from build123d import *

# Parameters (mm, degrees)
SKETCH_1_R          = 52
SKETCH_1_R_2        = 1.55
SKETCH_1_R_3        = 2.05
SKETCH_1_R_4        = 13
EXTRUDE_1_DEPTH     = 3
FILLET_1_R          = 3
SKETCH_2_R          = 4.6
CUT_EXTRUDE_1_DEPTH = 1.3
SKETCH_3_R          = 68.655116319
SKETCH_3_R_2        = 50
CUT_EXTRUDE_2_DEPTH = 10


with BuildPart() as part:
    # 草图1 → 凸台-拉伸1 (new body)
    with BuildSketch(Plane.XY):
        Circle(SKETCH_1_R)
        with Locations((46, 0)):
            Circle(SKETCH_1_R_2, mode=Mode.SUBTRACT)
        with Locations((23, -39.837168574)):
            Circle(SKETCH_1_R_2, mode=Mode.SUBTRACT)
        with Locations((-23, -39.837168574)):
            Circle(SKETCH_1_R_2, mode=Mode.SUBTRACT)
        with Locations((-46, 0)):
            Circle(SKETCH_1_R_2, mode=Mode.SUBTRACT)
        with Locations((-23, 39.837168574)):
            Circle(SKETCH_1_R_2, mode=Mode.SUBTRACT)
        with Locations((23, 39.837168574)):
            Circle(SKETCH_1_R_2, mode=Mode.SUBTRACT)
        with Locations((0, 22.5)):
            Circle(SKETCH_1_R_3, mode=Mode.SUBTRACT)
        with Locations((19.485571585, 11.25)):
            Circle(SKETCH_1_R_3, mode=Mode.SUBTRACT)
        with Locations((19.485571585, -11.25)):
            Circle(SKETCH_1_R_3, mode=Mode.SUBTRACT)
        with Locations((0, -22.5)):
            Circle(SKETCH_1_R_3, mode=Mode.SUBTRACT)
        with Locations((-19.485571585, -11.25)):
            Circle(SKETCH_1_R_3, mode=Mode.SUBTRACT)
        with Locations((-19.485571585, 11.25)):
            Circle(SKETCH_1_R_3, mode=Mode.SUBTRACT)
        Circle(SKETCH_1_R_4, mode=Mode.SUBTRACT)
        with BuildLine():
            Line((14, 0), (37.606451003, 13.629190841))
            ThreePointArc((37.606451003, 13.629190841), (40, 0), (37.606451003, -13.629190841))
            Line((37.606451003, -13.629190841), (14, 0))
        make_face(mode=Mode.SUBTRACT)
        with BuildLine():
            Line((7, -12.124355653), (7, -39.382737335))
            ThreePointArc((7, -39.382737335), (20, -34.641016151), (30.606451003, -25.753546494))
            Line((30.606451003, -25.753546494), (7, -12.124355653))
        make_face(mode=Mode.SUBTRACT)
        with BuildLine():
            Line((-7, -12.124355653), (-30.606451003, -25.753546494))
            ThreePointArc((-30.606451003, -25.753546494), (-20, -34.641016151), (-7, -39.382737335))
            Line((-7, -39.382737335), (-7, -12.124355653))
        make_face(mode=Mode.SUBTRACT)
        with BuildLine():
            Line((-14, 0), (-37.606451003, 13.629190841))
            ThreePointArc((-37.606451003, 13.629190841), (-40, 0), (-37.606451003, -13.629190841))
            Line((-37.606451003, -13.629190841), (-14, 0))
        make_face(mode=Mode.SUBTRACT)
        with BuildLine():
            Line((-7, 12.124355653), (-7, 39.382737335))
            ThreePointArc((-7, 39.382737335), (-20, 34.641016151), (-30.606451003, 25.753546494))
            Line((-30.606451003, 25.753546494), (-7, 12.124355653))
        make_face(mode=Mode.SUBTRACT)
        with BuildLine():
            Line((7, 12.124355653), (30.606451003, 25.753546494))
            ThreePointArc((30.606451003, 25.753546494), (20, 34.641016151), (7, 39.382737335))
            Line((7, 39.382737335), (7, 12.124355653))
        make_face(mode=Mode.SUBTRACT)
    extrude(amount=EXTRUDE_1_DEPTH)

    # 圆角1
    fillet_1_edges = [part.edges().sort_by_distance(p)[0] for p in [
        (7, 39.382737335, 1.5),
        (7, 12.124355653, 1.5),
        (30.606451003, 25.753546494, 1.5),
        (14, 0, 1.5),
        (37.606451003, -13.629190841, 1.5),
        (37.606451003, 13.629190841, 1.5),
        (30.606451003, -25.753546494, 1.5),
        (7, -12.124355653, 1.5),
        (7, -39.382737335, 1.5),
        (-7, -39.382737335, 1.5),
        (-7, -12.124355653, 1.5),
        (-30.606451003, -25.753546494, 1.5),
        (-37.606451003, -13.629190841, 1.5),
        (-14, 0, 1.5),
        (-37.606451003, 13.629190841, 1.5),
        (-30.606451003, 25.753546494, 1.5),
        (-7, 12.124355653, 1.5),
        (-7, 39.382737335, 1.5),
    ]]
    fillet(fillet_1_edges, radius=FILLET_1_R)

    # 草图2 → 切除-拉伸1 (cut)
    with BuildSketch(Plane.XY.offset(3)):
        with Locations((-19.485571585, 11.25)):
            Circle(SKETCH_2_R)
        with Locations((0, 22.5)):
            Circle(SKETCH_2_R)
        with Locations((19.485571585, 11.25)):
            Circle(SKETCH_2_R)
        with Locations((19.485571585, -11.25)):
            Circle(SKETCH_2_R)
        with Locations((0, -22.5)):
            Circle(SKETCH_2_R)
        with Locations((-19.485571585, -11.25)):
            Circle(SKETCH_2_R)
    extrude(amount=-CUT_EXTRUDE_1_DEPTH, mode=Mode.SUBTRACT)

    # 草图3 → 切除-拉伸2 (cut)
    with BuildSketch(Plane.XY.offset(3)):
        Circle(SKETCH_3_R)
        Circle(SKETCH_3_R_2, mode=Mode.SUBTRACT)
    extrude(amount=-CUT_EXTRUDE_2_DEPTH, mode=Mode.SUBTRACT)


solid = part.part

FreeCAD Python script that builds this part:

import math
import FreeCAD as App
import Part
import Sketcher
Q = App.Units.Quantity


def edges_at(feature, points):
    """Names of the edges that pass closest to the given points."""
    edges = feature.Shape.Edges
    near = lambda p: min(range(len(edges)), key=lambda i: edges[i].distToShape(Part.Vertex(*p))[0])
    return sorted({f"Edge{near(p) + 1}" for p in points})

doc = App.newDocument("Part")
body = doc.addObject("PartDesign::Body", "Body")

# Sketch on XY plane
sketch1 = body.newObject("Sketcher::SketchObject", "Sketch")
sketch1.AttachmentSupport = (doc.getObject("XY_Plane"), [""])
sketch1.MapMode = "FlatFace"
sketch1.addGeometry([
    Part.Circle(App.Vector(0, 0, 0), App.Vector(0, 0, 1), 52),  # 0
    Part.Circle(App.Vector(-23, -39.837169, 0), App.Vector(0, 0, 1), 1.55),  # 1
    Part.LineSegment(App.Vector(-30.606451, -25.753546, 0), App.Vector(-7, -12.124356, 0)),  # 2
    Part.LineSegment(App.Vector(-7, -12.124356, 0), App.Vector(-7, -39.382737, 0)),  # 3
    Part.ArcOfCircle(Part.Circle(App.Vector(0, 0, 0), App.Vector(0, 0, 1), 40), math.radians(-139.921342), math.radians(-100.078658)),  # 4
    Part.Circle(App.Vector(-19.485572, -11.25, 0), App.Vector(0, 0, 1), 2.05),  # 5
    Part.Circle(App.Vector(23, -39.837169, 0), App.Vector(0, 0, 1), 1.55),  # 6
    Part.Circle(App.Vector(0, -22.5, 0), App.Vector(0, 0, 1), 2.05),  # 7
    Part.LineSegment(App.Vector(7, -39.382737, 0), App.Vector(7, -12.124356, 0)),  # 8
    Part.LineSegment(App.Vector(7, -12.124356, 0), App.Vector(30.606451, -25.753546, 0)),  # 9
    Part.ArcOfCircle(Part.Circle(App.Vector(0, 0, 0), App.Vector(0, 0, 1), 40), math.radians(-79.921342), math.radians(-40.078658)),  # 10
    Part.Circle(App.Vector(19.485572, -11.25, 0), App.Vector(0, 0, 1), 2.05),  # 11
    Part.Circle(App.Vector(-46, 0, 0), App.Vector(0, 0, 1), 1.55),  # 12
    Part.LineSegment(App.Vector(-37.606451, 13.629191, 0), App.Vector(-14, 0, 0)),  # 13
    Part.LineSegment(App.Vector(-14, 0, 0), App.Vector(-37.606451, -13.629191, 0)),  # 14
    Part.ArcOfCircle(Part.Circle(App.Vector(0, 0, 0), App.Vector(0, 0, 1), 40), math.radians(160.078658), math.radians(199.921342)),  # 15
    Part.Circle(App.Vector(-19.485572, 11.25, 0), App.Vector(0, 0, 1), 2.05),  # 16
    Part.LineSegment(App.Vector(-7, 39.382737, 0), App.Vector(-7, 12.124356, 0)),  # 17
    Part.LineSegment(App.Vector(-7, 12.124356, 0), App.Vector(-30.606451, 25.753546, 0)),  # 18
    Part.ArcOfCircle(Part.Circle(App.Vector(0, 0, 0), App.Vector(0, 0, 1), 40), math.radians(100.078658), math.radians(139.921342)),  # 19
    Part.Circle(App.Vector(-23, 39.837169, 0), App.Vector(0, 0, 1), 1.55),  # 20
    Part.Circle(App.Vector(0, 0, 0), App.Vector(0, 0, 1), 13),  # 21
    Part.Circle(App.Vector(19.485572, 11.25, 0), App.Vector(0, 0, 1), 2.05),  # 22
    Part.LineSegment(App.Vector(37.606451, -13.629191, 0), App.Vector(14, 0, 0)),  # 23
    Part.LineSegment(App.Vector(14, 0, 0), App.Vector(37.606451, 13.629191, 0)),  # 24
    Part.ArcOfCircle(Part.Circle(App.Vector(0, 0, 0), App.Vector(0, 0, 1), 40), math.radians(-19.921342), math.radians(19.921342)),  # 25
    Part.Circle(App.Vector(46, 0, 0), App.Vector(0, 0, 1), 1.55),  # 26
    Part.Circle(App.Vector(0, 22.5, 0), App.Vector(0, 0, 1), 2.05),  # 27
    Part.LineSegment(App.Vector(30.606451, 25.753546, 0), App.Vector(7, 12.124356, 0)),  # 28
    Part.LineSegment(App.Vector(7, 12.124356, 0), App.Vector(7, 39.382737, 0)),  # 29
    Part.ArcOfCircle(Part.Circle(App.Vector(0, 0, 0), App.Vector(0, 0, 1), 40), math.radians(40.078658), math.radians(79.921342)),  # 30
    Part.Circle(App.Vector(23, 39.837169, 0), App.Vector(0, 0, 1), 1.55),  # 31
], False)
sketch1.addConstraint([
    Sketcher.Constraint("Coincident", 2, 2, 3, 1),
    Sketcher.Constraint("Coincident", 3, 2, 4, 2),
    Sketcher.Constraint("Coincident", 4, 1, 2, 1),
    Sketcher.Constraint("Coincident", 8, 2, 9, 1),
    Sketcher.Constraint("Coincident", 9, 2, 10, 2),
    Sketcher.Constraint("Coincident", 10, 1, 8, 1),
    Sketcher.Constraint("Coincident", 13, 2, 14, 1),
    Sketcher.Constraint("Coincident", 14, 2, 15, 2),
    Sketcher.Constraint("Coincident", 15, 1, 13, 1),
    Sketcher.Constraint("Coincident", 17, 2, 18, 1),
    Sketcher.Constraint("Coincident", 18, 2, 19, 2),
    Sketcher.Constraint("Coincident", 19, 1, 17, 1),
    Sketcher.Constraint("Coincident", 23, 2, 24, 1),
    Sketcher.Constraint("Coincident", 24, 2, 25, 2),
    Sketcher.Constraint("Coincident", 25, 1, 23, 1),
    Sketcher.Constraint("Coincident", 28, 2, 29, 1),
    Sketcher.Constraint("Coincident", 29, 2, 30, 2),
    Sketcher.Constraint("Coincident", 30, 1, 28, 1),
    Sketcher.Constraint("Vertical", 3),
    Sketcher.Constraint("Vertical", 8),
    Sketcher.Constraint("Vertical", 17),
    Sketcher.Constraint("Vertical", 29),
    Sketcher.Constraint("Coincident", 0, 3, -1, 1),
    Sketcher.Constraint("Coincident", 4, 3, -1, 1),
    Sketcher.Constraint("Coincident", 10, 3, -1, 1),
    Sketcher.Constraint("Coincident", 15, 3, -1, 1),
    Sketcher.Constraint("Coincident", 19, 3, -1, 1),
    Sketcher.Constraint("Coincident", 21, 3, -1, 1),
    Sketcher.Constraint("Coincident", 25, 3, -1, 1),
    Sketcher.Constraint("Coincident", 30, 3, -1, 1),
    Sketcher.Constraint("Equal", 1, 6),
    Sketcher.Constraint("Equal", 5, 7),
    Sketcher.Constraint("Equal", 4, 10),
    Sketcher.Constraint("Equal", 7, 11),
    Sketcher.Constraint("Equal", 6, 12),
    Sketcher.Constraint("Equal", 10, 15),
    Sketcher.Constraint("Equal", 11, 16),
    Sketcher.Constraint("Equal", 15, 19),
    Sketcher.Constraint("Equal", 12, 20),
    Sketcher.Constraint("Equal", 16, 22),
    Sketcher.Constraint("Equal", 19, 25),
    Sketcher.Constraint("Equal", 20, 26),
    Sketcher.Constraint("Equal", 22, 27),
    Sketcher.Constraint("Equal", 25, 30),
    Sketcher.Constraint("Equal", 26, 31),
    Sketcher.Constraint("Symmetric", 11, 3, 16, 3, -1, 1),
    Sketcher.Constraint("Symmetric", 6, 3, 20, 3, -1, 1),
    Sketcher.Constraint("Symmetric", 5, 3, 22, 3, -1, 1),
    Sketcher.Constraint("Symmetric", 12, 3, 26, 3, -1, 1),
    Sketcher.Constraint("Symmetric", 7, 3, 27, 3, -1, 1),
    Sketcher.Constraint("Symmetric", 1, 3, 31, 3, -1, 1),
    Sketcher.Constraint("Symmetric", 8, 2, 17, 2, -1, 1),
    Sketcher.Constraint("Symmetric", 13, 2, 23, 2, -1, 1),
    Sketcher.Constraint("Symmetric", 2, 2, 28, 2, -1, 1),
    Sketcher.Constraint("Symmetric", 1, 3, 6, 3, -2),
    Sketcher.Constraint("Symmetric", 5, 3, 11, 3, -2),
    Sketcher.Constraint("Symmetric", 2, 2, 8, 2, -2),
    Sketcher.Constraint("PointOnObject", 7, 3, -2),
    Sketcher.Constraint("PointOnObject", 12, 3, -1),
    Sketcher.Constraint("PointOnObject", 13, 2, -1),
    Sketcher.Constraint("Parallel", 9, 13),
    Sketcher.Constraint("Parallel", 2, 14),
    Sketcher.Constraint("Parallel", 13, 18),
    Sketcher.Constraint("Parallel", 18, 23),
    Sketcher.Constraint("Parallel", 14, 24),
    Sketcher.Constraint("Parallel", 24, 28),
    Sketcher.Constraint("Horizontal", 4, 1, 9, 2),
    Sketcher.Constraint("Equal", 9, 13),
    Sketcher.Constraint("Diameter", 0, Q("104 mm")),
    Sketcher.Constraint("Diameter", 21, Q("26 mm")),
    Sketcher.Constraint("Radius", 4, Q("40 mm")),
    Sketcher.Constraint("Diameter", 1, Q("3.1 mm")),
    Sketcher.Constraint("Diameter", 5, Q("4.1 mm")),
    Sketcher.Constraint("Angle", 2, Q("30 deg")),
    Sketcher.Constraint("DistanceX", 1, 3, -1, 1, Q("23 mm")),
    Sketcher.Constraint("DistanceX", 12, 3, -1, 1, Q("46 mm")),
    Sketcher.Constraint("DistanceX", 2, 2, -1, 1, Q("7 mm")),
    Sketcher.Constraint("DistanceX", 13, 2, -1, 1, Q("14 mm")),
    Sketcher.Constraint("DistanceY", 7, 3, -1, 1, Q("22.5 mm")),
    Sketcher.Constraint("DistanceY", 5, 3, 16, 3, Q("22.5 mm")),
    Sketcher.Constraint("DistanceY", 1, 3, -1, 1, Q("39.837169 mm")),
    Sketcher.Constraint("DistanceX", 5, 3, -1, 1, Q("19.485572 mm")),
])
pad1 = body.newObject("PartDesign::Pad", "Pad")
pad1.Profile = sketch1
pad1.Length = 3
doc.recompute()

fillet = body.newObject("PartDesign::Fillet", "Fillet")
fillet.Base = (pad1, edges_at(pad1, [
    (7, 39.383, 1.5),
    (7, 12.124, 1.5),
    (30.606, 25.754, 1.5),
    (14, 0, 1.5),
    (37.606, -13.629, 1.5),
    (37.606, 13.629, 1.5),
    (30.606, -25.754, 1.5),
    (7, -12.124, 1.5),
    (7, -39.383, 1.5),
    (-7, -39.383, 1.5),
    (-7, -12.124, 1.5),
    (-30.606, -25.754, 1.5),
    (-37.606, -13.629, 1.5),
    (-14, 0, 1.5),
    (-37.606, 13.629, 1.5),
    (-30.606, 25.754, 1.5),
    (-7, 12.124, 1.5),
    (-7, 39.383, 1.5),
]))
fillet.Radius = 3

# Sketch on XY plane
sketch2 = body.newObject("Sketcher::SketchObject", "Sketch001")
sketch2.AttachmentSupport = (doc.getObject("XY_Plane"), [""])
sketch2.MapMode = "FlatFace"
sketch2.AttachmentOffset = App.Placement(App.Vector(0, 0, 3), App.Rotation())
sketch2.addGeometry([
    Part.Circle(App.Vector(-19.485572, 11.25, 0), App.Vector(0, 0, 1), 4.6),  # 0
    Part.Circle(App.Vector(0, 22.5, 0), App.Vector(0, 0, 1), 4.6),  # 1
    Part.Circle(App.Vector(19.485572, 11.25, 0), App.Vector(0, 0, 1), 4.6),  # 2
    Part.Circle(App.Vector(19.485572, -11.25, 0), App.Vector(0, 0, 1), 4.6),  # 3
    Part.Circle(App.Vector(0, -22.5, 0), App.Vector(0, 0, 1), 4.6),  # 4
    Part.Circle(App.Vector(-19.485572, -11.25, 0), App.Vector(0, 0, 1), 4.6),  # 5
], False)
sketch2.addConstraint([
    Sketcher.Constraint("Equal", 0, 1),
    Sketcher.Constraint("Equal", 1, 2),
    Sketcher.Constraint("Equal", 2, 3),
    Sketcher.Constraint("Equal", 3, 4),
    Sketcher.Constraint("Equal", 4, 5),
    Sketcher.Constraint("Symmetric", 0, 3, 3, 3, -1, 1),
    Sketcher.Constraint("Symmetric", 1, 3, 4, 3, -1, 1),
    Sketcher.Constraint("Symmetric", 2, 3, 5, 3, -1, 1),
    Sketcher.Constraint("Symmetric", 0, 3, 2, 3, -2),
    Sketcher.Constraint("PointOnObject", 1, 3, -2),
    Sketcher.Constraint("Diameter", 0, Q("9.2 mm")),
    Sketcher.Constraint("DistanceY", 4, 3, 1, 3, Q("45 mm")),
    Sketcher.Constraint("DistanceY", 3, 3, 2, 3, Q("22.5 mm")),
    Sketcher.Constraint("DistanceX", 0, 3, -1, 1, Q("19.485572 mm")),
])
pocket1 = body.newObject("PartDesign::Pocket", "Pocket")
pocket1.Profile = sketch2
pocket1.Length = 1.3

# Sketch on XY plane
sketch3 = body.newObject("Sketcher::SketchObject", "Sketch002")
sketch3.AttachmentSupport = (doc.getObject("XY_Plane"), [""])
sketch3.MapMode = "FlatFace"
sketch3.AttachmentOffset = App.Placement(App.Vector(0, 0, 3), App.Rotation())
sketch3.addGeometry([
    Part.Circle(App.Vector(0, 0, 0), App.Vector(0, 0, 1), 68.655116),
    Part.Circle(App.Vector(0, 0, 0), App.Vector(0, 0, 1), 50),
], False)
sketch3.addConstraint([
    Sketcher.Constraint("Coincident", 0, 3, -1, 1),
    Sketcher.Constraint("Coincident", 1, 3, -1, 1),
    Sketcher.Constraint("Diameter", 1, Q("100 mm")),
    Sketcher.Constraint("Diameter", 0, Q("137.310233 mm")),
])
pocket2 = body.newObject("PartDesign::Pocket", "Pocket001")
pocket2.Profile = sketch3
pocket2.Length = 10

doc.recompute()
